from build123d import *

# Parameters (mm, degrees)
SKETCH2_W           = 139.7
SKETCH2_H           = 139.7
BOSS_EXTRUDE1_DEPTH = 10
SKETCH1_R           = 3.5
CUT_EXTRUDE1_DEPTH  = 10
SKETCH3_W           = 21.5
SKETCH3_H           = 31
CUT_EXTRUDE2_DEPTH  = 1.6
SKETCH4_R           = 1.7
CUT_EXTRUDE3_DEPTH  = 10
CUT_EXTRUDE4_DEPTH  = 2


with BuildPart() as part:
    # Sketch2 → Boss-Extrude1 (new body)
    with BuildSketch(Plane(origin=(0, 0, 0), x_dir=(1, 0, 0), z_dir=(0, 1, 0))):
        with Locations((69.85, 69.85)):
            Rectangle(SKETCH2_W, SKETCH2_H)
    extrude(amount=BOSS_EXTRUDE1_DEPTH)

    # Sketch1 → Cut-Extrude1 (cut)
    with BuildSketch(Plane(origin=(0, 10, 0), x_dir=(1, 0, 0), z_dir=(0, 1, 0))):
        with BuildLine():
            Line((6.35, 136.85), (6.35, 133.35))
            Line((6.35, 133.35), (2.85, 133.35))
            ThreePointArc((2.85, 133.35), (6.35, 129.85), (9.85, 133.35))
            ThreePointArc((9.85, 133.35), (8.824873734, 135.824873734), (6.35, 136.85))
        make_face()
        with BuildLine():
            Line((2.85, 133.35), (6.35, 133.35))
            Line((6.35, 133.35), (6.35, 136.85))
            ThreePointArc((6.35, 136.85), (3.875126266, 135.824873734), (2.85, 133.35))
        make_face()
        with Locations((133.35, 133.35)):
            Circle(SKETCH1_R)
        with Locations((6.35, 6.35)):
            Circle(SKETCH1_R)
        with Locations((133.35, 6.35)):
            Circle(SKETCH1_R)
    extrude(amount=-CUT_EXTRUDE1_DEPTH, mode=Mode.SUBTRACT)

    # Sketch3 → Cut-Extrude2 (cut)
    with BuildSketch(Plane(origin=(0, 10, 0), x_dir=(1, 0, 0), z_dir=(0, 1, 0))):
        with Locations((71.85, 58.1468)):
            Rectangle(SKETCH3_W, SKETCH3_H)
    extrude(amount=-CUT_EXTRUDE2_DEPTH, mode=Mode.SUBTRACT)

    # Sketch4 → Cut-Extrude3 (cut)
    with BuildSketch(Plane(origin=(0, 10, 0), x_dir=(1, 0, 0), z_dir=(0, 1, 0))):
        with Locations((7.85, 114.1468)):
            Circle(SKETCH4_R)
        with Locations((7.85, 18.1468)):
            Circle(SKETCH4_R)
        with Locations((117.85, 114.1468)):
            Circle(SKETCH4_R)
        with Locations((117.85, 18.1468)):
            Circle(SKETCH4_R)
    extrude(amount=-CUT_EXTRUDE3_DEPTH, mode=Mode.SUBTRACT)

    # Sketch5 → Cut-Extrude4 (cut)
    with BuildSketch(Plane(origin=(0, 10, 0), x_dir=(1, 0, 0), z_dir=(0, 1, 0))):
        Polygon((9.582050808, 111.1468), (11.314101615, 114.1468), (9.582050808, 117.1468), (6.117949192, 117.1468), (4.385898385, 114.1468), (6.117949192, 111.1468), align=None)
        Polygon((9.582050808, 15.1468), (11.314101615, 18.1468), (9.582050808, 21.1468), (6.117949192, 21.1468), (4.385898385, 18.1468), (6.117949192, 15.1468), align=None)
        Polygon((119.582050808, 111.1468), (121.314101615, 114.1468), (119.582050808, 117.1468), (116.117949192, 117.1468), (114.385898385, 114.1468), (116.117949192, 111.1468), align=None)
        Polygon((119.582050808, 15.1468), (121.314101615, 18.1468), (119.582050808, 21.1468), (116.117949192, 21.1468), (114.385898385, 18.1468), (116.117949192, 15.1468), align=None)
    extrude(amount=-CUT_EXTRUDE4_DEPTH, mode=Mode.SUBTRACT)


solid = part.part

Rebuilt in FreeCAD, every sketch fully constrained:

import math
import FreeCAD as App
import Part
import Sketcher
from FreeCAD import Vector
Q = App.Units.Quantity

doc = App.newDocument("Part")
body = doc.addObject("PartDesign::Body", "Body")

sketch1 = body.newObject("Sketcher::SketchObject", "Sketch")
sketch1.AttachmentSupport = (doc.getObject("XZ_Plane"), [""])
sketch1.MapMode = "FlatFace"
sketch1.addGeometry([
    Part.LineSegment(Vector(0, -139.7, 0), Vector(0, 0, 0)),
    Part.LineSegment(Vector(0, 0, 0), Vector(139.7, 0, 0)),
    Part.LineSegment(Vector(139.7, 0, 0), Vector(139.7, -139.7, 0)),
    Part.LineSegment(Vector(139.7, -139.7, 0), Vector(0, -139.7, 0)),
], False)
sketch1.addConstraint([
    Sketcher.Constraint("Coincident", 0, 2, 1, 1),
    Sketcher.Constraint("Coincident", 1, 2, 2, 1),
    Sketcher.Constraint("Coincident", 2, 2, 3, 1),
    Sketcher.Constraint("Coincident", 3, 2, 0, 1),
    Sketcher.Constraint("Vertical", 0),
    Sketcher.Constraint("Horizontal", 1),
    Sketcher.Constraint("Vertical", 2),
    Sketcher.Constraint("Horizontal", 3),
    Sketcher.Constraint("Coincident", 0, 2, -1, 1),
    Sketcher.Constraint("Equal", 3, 0),
    Sketcher.Constraint("DistanceX", 1, 1, 1, 2, Q("139.7 mm")),
])
pad1 = body.newObject("PartDesign::Pad", "Pad")
pad1.Profile = sketch1
pad1.Length = 10
pad1.Reversed = True

sketch2 = body.newObject("Sketcher::SketchObject", "Sketch001")
sketch2.AttachmentSupport = (doc.getObject("XZ_Plane"), [""])
sketch2.MapMode = "FlatFace"
sketch2.AttachmentOffset = App.Placement(Vector(0, 0, -10), App.Rotation())
sketch2.addGeometry([
    Part.ArcOfCircle(Part.Circle(Vector(6.35, -133.35, 0), Vector(0, 0, 1), 3.5), math.radians(0), math.radians(180)),
    Part.ArcOfCircle(Part.Circle(Vector(6.35, -133.35, 0), Vector(0, 0, 1), 3.5), math.radians(-90), math.radians(0)),
    Part.ArcOfCircle(Part.Circle(Vector(6.35, -133.35, 0), Vector(0, 0, 1), 3.5), math.radians(-180), math.radians(-90)),
    Part.Circle(Vector(133.35, -133.35, 0), Vector(0, 0, 1), 3.5),
    Part.Circle(Vector(6.35, -6.35, 0), Vector(0, 0, 1), 3.5),
    Part.Circle(Vector(133.35, -6.35, 0), Vector(0, 0, 1), 3.5),
], False)
sketch2.addConstraint([
    Sketcher.Constraint("Tangent", 0, 1, 1, 2),
    Sketcher.Constraint("Tangent", 1, 1, 2, 2),
    Sketcher.Constraint("Tangent", 2, 1, 0, 2),
    Sketcher.Constraint("Equal", 2, 3),
    Sketcher.Constraint("Equal", 3, 4),
    Sketcher.Constraint("Equal", 4, 5),
    Sketcher.Constraint("Horizontal", 2, 3, 3, 3),
    Sketcher.Constraint("Horizontal", 4, 3, 5, 3),
    Sketcher.Constraint("Horizontal", 3, 3, 0, 1),
    Sketcher.Constraint("Horizontal", 0, 1, 2, 1),
    Sketcher.Constraint("Vertical", 2, 3, 4, 3),
    Sketcher.Constraint("Vertical", 3, 3, 5, 3),
    Sketcher.Constraint("Vertical", 4, 3, 1, 1),
    Sketcher.Constraint("Diameter", 3, Q("7 mm")),
    Sketcher.Constraint("DistanceX", 2, 3, 3, 3, Q("127 mm")),
    Sketcher.Constraint("DistanceY", 1, 3, 4, 3, Q("127 mm")),
    Sketcher.Constraint("DistanceX", -1, 1, 0, 3, Q("6.35 mm")),
    Sketcher.Constraint("DistanceY", 0, 3, -1, 1, Q("133.35 mm")),
])
pocket1 = body.newObject("PartDesign::Pocket", "Pocket")
pocket1.Profile = sketch2
pocket1.Length = 10
pocket1.Reversed = True

sketch3 = body.newObject("Sketcher::SketchObject", "Sketch002")
sketch3.AttachmentSupport = (doc.getObject("XZ_Plane"), [""])
sketch3.MapMode = "FlatFace"
sketch3.AttachmentOffset = App.Placement(Vector(0, 0, -10), App.Rotation())
sketch3.addGeometry([
    Part.LineSegment(Vector(61.1, -73.6468, 0), Vector(61.1, -42.6468, 0)),
    Part.LineSegment(Vector(61.1, -42.6468, 0), Vector(82.6, -42.6468, 0)),
    Part.LineSegment(Vector(82.6, -42.6468, 0), Vector(82.6, -73.6468, 0)),
    Part.LineSegment(Vector(82.6, -73.6468, 0), Vector(61.1, -73.6468, 0)),
], False)
sketch3.addConstraint([
    Sketcher.Constraint("Coincident", 0, 2, 1, 1),
    Sketcher.Constraint("Coincident", 1, 2, 2, 1),
    Sketcher.Constraint("Coincident", 2, 2, 3, 1),
    Sketcher.Constraint("Coincident", 3, 2, 0, 1),
    Sketcher.Constraint("Vertical", 0),
    Sketcher.Constraint("Horizontal", 1),
    Sketcher.Constraint("Vertical", 2),
    Sketcher.Constraint("Horizontal", 3),
    Sketcher.Constraint("DistanceY", 0, 1, 0, 2, Q("31 mm")),
    Sketcher.Constraint("DistanceX", 1, 1, 1, 2, Q("21.5 mm")),
    Sketcher.Constraint("DistanceX", -1, 1, 0, 2, Q("61.1 mm")),
    Sketcher.Constraint("DistanceY", 0, 2, -1, 1, Q("42.6468 mm")),
])
pocket2 = body.newObject("PartDesign::Pocket", "Pocket001")
pocket2.Profile = sketch3
pocket2.Length = 1.6
pocket2.Reversed = True

sketch4 = body.newObject("Sketcher::SketchObject", "Sketch003")
sketch4.AttachmentSupport = (doc.getObject("XZ_Plane"), [""])
sketch4.MapMode = "FlatFace"
sketch4.AttachmentOffset = App.Placement(Vector(0, 0, -10), App.Rotation())
sketch4.addGeometry([
    Part.Circle(Vector(7.85, -114.1468, 0), Vector(0, 0, 1), 1.7),
    Part.Circle(Vector(7.85, -18.1468, 0), Vector(0, 0, 1), 1.7),
    Part.Circle(Vector(117.85, -114.1468, 0), Vector(0, 0, 1), 1.7),
    Part.Circle(Vector(117.85, -18.1468, 0), Vector(0, 0, 1), 1.7),
], False)
sketch4.addConstraint([
    Sketcher.Constraint("Equal", 0, 1),
    Sketcher.Constraint("Equal", 1, 2),
    Sketcher.Constraint("Equal", 2, 3),
    Sketcher.Constraint("Horizontal", 0, 3, 2, 3),
    Sketcher.Constraint("Horizontal", 1, 3, 3, 3),
    Sketcher.Constraint("Vertical", 0, 3, 1, 3),
    Sketcher.Constraint("Vertical", 2, 3, 3, 3),
    Sketcher.Constraint("Diameter", 0, Q("3.4 mm")),
    Sketcher.Constraint("DistanceY", 0, 3, 1, 3, Q("96 mm")),
    Sketcher.Constraint("DistanceX", 0, 3, 2, 3, Q("110 mm")),
    Sketcher.Constraint("DistanceX", -1, 1, 0, 3, Q("7.85 mm")),
    Sketcher.Constraint("DistanceY", 0, 3, -1, 1, Q("114.1468 mm")),
])
pocket3 = body.newObject("PartDesign::Pocket", "Pocket002")
pocket3.Profile = sketch4
pocket3.Length = 10
pocket3.Reversed = True

sketch5 = body.newObject("Sketcher::SketchObject", "Sketch004")
sketch5.AttachmentSupport = (doc.getObject("XZ_Plane"), [""])
sketch5.MapMode = "FlatFace"
sketch5.AttachmentOffset = App.Placement(Vector(0, 0, -10), App.Rotation())
sketch5.addGeometry([
    Part.LineSegment(Vector(9.582051, -111.1468, 0), Vector(11.314102, -114.1468, 0)),
    Part.LineSegment(Vector(11.314102, -114.1468, 0), Vector(9.582051, -117.1468, 0)),
    Part.LineSegment(Vector(9.582051, -117.1468, 0), Vector(6.117949, -117.1468, 0)),
    Part.LineSegment(Vector(6.117949, -117.1468, 0), Vector(4.385898, -114.1468, 0)),
    Part.LineSegment(Vector(4.385898, -114.1468, 0), Vector(6.117949, -111.1468, 0)),
    Part.LineSegment(Vector(6.117949, -111.1468, 0), Vector(9.582051, -111.1468, 0)),
    Part.LineSegment(Vector(9.582051, -15.1468, 0), Vector(11.314102, -18.1468, 0)),
    Part.LineSegment(Vector(11.314102, -18.1468, 0), Vector(9.582051, -21.1468, 0)),
    Part.LineSegment(Vector(9.582051, -21.1468, 0), Vector(6.117949, -21.1468, 0)),
    Part.LineSegment(Vector(6.117949, -21.1468, 0), Vector(4.385898, -18.1468, 0)),
    Part.LineSegment(Vector(4.385898, -18.1468, 0), Vector(6.117949, -15.1468, 0)),
    Part.LineSegment(Vector(6.117949, -15.1468, 0), Vector(9.582051, -15.1468, 0)),
    Part.LineSegment(Vector(119.582051, -111.1468, 0), Vector(121.314102, -114.1468, 0)),
    Part.LineSegment(Vector(121.314102, -114.1468, 0), Vector(119.582051, -117.1468, 0)),
    Part.LineSegment(Vector(119.582051, -117.1468, 0), Vector(116.117949, -117.1468, 0)),
    Part.LineSegment(Vector(116.117949, -117.1468, 0), Vector(114.385898, -114.1468, 0)),
    Part.LineSegment(Vector(114.385898, -114.1468, 0), Vector(116.117949, -111.1468, 0)),
    Part.LineSegment(Vector(116.117949, -111.1468, 0), Vector(119.582051, -111.1468, 0)),
    Part.LineSegment(Vector(119.582051, -15.1468, 0), Vector(121.314102, -18.1468, 0)),
    Part.LineSegment(Vector(121.314102, -18.1468, 0), Vector(119.582051, -21.1468, 0)),
    Part.LineSegment(Vector(119.582051, -21.1468, 0), Vector(116.117949, -21.1468, 0)),
    Part.LineSegment(Vector(116.117949, -21.1468, 0), Vector(114.385898, -18.1468, 0)),
    Part.LineSegment(Vector(114.385898, -18.1468, 0), Vector(116.117949, -15.1468, 0)),
    Part.LineSegment(Vector(116.117949, -15.1468, 0), Vector(119.582051, -15.1468, 0)),
], False)
sketch5.addConstraint([
    Sketcher.Constraint("Coincident", 0, 2, 1, 1),
    Sketcher.Constraint("Coincident", 1, 2, 2, 1),
    Sketcher.Constraint("Coincident", 2, 2, 3, 1),
    Sketcher.Constraint("Coincident", 3, 2, 4, 1),
    Sketcher.Constraint("Coincident", 4, 2, 5, 1),
    Sketcher.Constraint("Coincident", 5, 2, 0, 1),
    Sketcher.Constraint("Coincident", 6, 2, 7, 1),
    Sketcher.Constraint("Coincident", 7, 2, 8, 1),
    Sketcher.Constraint("Coincident", 8, 2, 9, 1),
    Sketcher.Constraint("Coincident", 9, 2, 10, 1),
    Sketcher.Constraint("Coincident", 10, 2, 11, 1),
    Sketcher.Constraint("Coincident", 11, 2, 6, 1),
    Sketcher.Constraint("Coincident", 12, 2, 13, 1),
    Sketcher.Constraint("Coincident", 13, 2, 14, 1),
    Sketcher.Constraint("Coincident", 14, 2, 15, 1),
    Sketcher.Constraint("Coincident", 15, 2, 16, 1),
    Sketcher.Constraint("Coincident", 16, 2, 17, 1),
    Sketcher.Constraint("Coincident", 17, 2, 12, 1),
    Sketcher.Constraint("Coincident", 18, 2, 19, 1),
    Sketcher.Constraint("Coincident", 19, 2, 20, 1),
    Sketcher.Constraint("Coincident", 20, 2, 21, 1),
    Sketcher.Constraint("Coincident", 21, 2, 22, 1),
    Sketcher.Constraint("Coincident", 22, 2, 23, 1),
    Sketcher.Constraint("Coincident", 23, 2, 18, 1),
    Sketcher.Constraint("Horizontal", 2),
    Sketcher.Constraint("Horizontal", 5),
    Sketcher.Constraint("Horizontal", 8),
    Sketcher.Constraint("Horizontal", 11),
    Sketcher.Constraint("Horizontal", 14),
    Sketcher.Constraint("Horizontal", 17),
    Sketcher.Constraint("Horizontal", 20),
    Sketcher.Constraint("Horizontal", 23),
    Sketcher.Constraint("Parallel", 0, 3),
    Sketcher.Constraint("Parallel", 1, 4),
    Sketcher.Constraint("Parallel", 3, 6),
    Sketcher.Constraint("Parallel", 4, 7),
    Sketcher.Constraint("Parallel", 6, 9),
    Sketcher.Constraint("Parallel", 7, 10),
    Sketcher.Constraint("Parallel", 9, 12),
    Sketcher.Constraint("Parallel", 10, 13),
    Sketcher.Constraint("Parallel", 12, 15),
    Sketcher.Constraint("Parallel", 13, 16),
    Sketcher.Constraint("Parallel", 15, 18),
    Sketcher.Constraint("Parallel", 16, 19),
    Sketcher.Constraint("Parallel", 18, 21),
    Sketcher.Constraint("Parallel", 19, 22),
    Sketcher.Constraint("Horizontal", 0, 2, 3, 2),
    Sketcher.Constraint("Horizontal", 6, 2, 9, 2),
    Sketcher.Constraint("Horizontal", 3, 2, 12, 2),
    Sketcher.Constraint("Horizontal", 2, 2, 13, 2),
    Sketcher.Constraint("Horizontal", 12, 2, 15, 2),
    Sketcher.Constraint("Horizontal", 5, 2, 16, 2),
    Sketcher.Constraint("Horizontal", 9, 2, 18, 2),
    Sketcher.Constraint("Horizontal", 8, 2, 19, 2),
    Sketcher.Constraint("Horizontal", 18, 2, 21, 2),
    Sketcher.Constraint("Horizontal", 11, 2, 22, 2),
    Sketcher.Constraint("Vertical", 2, 2, 4, 2),
    Sketcher.Constraint("Vertical", 1, 2, 5, 2),
    Sketcher.Constraint("Vertical", 0, 2, 6, 2),
    Sketcher.Constraint("Vertical", 5, 2, 7, 2),
    Sketcher.Constraint("Vertical", 4, 2, 8, 2),
    Sketcher.Constraint("Vertical", 8, 2, 10, 2),
    Sketcher.Constraint("Vertical", 12, 2, 18, 2),
    Sketcher.Constraint("Vertical", 16, 2, 20, 2),
    Sketcher.Constraint("Equal", 11, 14),
    Sketcher.Constraint("Angle", 0, Q("-60 deg")),
    Sketcher.Constraint("DistanceY", 1, 2, 0, 2, Q("3 mm")),
    Sketcher.Constraint("DistanceY", 5, 2, 6, 2, Q("93 mm")),
    Sketcher.Constraint("DistanceX", 0, 2, 12, 2, Q("110 mm")),
    Sketcher.Constraint("DistanceX", 2, 2, 2, 1, Q("3.464102 mm")),
    Sketcher.Constraint("DistanceX", -1, 1, 0, 2, Q("11.314102 mm")),
    Sketcher.Constraint("DistanceY", 0, 2, -1, 1, Q("114.1468 mm")),
])
pocket4 = body.newObject("PartDesign::Pocket", "Pocket003")
pocket4.Profile = sketch5
pocket4.Length = 2
pocket4.Reversed = True

doc.recompute()
